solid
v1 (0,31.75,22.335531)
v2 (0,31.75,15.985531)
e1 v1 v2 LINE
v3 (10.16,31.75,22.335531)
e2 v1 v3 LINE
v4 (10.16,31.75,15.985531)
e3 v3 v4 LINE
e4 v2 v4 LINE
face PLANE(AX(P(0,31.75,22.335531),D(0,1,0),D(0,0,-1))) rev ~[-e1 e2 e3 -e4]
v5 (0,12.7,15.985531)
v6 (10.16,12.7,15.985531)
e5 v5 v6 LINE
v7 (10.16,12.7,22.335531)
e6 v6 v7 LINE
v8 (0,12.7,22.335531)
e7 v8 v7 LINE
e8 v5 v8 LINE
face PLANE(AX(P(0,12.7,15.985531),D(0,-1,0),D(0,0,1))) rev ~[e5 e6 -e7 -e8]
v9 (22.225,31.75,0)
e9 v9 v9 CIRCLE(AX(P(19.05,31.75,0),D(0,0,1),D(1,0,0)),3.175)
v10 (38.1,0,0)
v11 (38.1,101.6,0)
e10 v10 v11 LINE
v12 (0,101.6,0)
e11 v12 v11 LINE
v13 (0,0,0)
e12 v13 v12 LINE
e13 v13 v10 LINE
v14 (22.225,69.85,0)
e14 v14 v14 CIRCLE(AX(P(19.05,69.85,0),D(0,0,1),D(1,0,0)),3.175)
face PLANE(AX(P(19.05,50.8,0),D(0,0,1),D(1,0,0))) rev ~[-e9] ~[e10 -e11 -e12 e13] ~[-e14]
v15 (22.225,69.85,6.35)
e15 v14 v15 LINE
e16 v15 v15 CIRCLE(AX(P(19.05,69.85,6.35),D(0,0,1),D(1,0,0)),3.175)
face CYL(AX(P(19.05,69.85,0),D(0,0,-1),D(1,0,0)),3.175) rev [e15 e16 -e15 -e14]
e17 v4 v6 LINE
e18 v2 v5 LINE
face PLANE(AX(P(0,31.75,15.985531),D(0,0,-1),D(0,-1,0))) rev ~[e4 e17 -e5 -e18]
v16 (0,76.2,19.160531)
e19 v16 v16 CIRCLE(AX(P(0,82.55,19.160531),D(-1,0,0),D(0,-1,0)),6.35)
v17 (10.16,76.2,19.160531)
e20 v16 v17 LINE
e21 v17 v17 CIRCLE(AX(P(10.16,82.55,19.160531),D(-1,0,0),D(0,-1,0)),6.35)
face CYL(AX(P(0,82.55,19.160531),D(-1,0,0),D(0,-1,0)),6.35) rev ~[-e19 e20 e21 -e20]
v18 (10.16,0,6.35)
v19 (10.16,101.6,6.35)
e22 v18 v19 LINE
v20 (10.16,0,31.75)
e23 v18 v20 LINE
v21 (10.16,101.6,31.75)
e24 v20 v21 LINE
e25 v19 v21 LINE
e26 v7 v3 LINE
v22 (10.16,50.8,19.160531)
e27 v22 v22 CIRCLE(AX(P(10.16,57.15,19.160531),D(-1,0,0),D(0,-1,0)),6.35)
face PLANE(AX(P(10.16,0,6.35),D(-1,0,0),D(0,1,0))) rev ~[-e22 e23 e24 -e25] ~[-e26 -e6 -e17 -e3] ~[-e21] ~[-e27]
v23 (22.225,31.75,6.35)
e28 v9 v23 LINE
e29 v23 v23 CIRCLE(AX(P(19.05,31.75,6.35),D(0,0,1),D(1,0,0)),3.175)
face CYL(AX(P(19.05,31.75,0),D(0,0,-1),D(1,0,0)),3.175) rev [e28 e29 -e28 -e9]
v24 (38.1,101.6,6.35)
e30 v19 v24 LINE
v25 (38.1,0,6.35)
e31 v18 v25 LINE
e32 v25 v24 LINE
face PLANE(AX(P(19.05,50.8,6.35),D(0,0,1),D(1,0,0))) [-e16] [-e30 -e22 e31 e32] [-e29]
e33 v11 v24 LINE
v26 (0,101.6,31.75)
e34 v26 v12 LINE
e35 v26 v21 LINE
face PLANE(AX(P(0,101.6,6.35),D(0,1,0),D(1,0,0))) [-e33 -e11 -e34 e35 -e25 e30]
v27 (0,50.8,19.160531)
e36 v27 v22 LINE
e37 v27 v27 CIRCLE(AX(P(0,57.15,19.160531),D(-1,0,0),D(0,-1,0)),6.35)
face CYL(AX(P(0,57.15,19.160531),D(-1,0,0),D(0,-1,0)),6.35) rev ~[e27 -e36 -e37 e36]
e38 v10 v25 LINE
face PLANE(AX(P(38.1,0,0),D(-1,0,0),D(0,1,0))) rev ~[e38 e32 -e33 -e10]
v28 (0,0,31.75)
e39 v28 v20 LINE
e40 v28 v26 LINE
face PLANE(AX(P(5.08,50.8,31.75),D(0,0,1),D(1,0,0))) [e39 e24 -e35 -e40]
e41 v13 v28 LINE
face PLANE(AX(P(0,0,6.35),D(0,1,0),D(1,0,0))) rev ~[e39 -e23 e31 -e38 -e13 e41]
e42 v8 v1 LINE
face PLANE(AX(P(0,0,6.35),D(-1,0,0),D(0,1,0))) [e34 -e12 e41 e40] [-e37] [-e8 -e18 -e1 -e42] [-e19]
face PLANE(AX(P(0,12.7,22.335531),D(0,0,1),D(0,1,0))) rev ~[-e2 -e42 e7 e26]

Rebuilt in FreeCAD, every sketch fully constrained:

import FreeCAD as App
import Part
import Sketcher
from FreeCAD import Vector
Q = App.Units.Quantity

doc = App.newDocument("Part")
body = doc.addObject("PartDesign::Body", "Body")

# Sketch on XY plane
sketch1 = body.newObject("Sketcher::SketchObject", "Sketch")
sketch1.AttachmentSupport = (doc.getObject("XY_Plane"), [""])
sketch1.MapMode = "FlatFace"
sketch1.addGeometry([
    Part.LineSegment(Vector(0, 101.6, 0), Vector(0, 0, 0)),  # 0
    Part.LineSegment(Vector(0, 0, 0), Vector(38.1, 0, 0)),  # 1
    Part.LineSegment(Vector(38.1, 0, 0), Vector(38.1, 101.6, 0)),  # 2
    Part.LineSegment(Vector(38.1, 101.6, 0), Vector(0, 101.6, 0)),  # 3
    Part.Circle(Vector(19.05, 31.75, 0), Vector(0, 0, 1), 3.175),  # 4
    Part.Circle(Vector(19.05, 69.85, 0), Vector(0, 0, 1), 3.175),  # 5
], False)
sketch1.addConstraint([
    Sketcher.Constraint("Coincident", 0, 2, 1, 1),
    Sketcher.Constraint("Coincident", 1, 2, 2, 1),
    Sketcher.Constraint("Coincident", 2, 2, 3, 1),
    Sketcher.Constraint("Coincident", 3, 2, 0, 1),
    Sketcher.Constraint("Vertical", 0),
    Sketcher.Constraint("Horizontal", 1),
    Sketcher.Constraint("Vertical", 2),
    Sketcher.Constraint("Horizontal", 3),
    Sketcher.Constraint("Coincident", 0, 2, -1, 1),
    Sketcher.Constraint("Equal", 4, 5),
    Sketcher.Constraint("Vertical", 4, 3, 5, 3),
    Sketcher.Constraint("Diameter", 4, Q("0.25 in")),
    Sketcher.Constraint("DistanceY", 0, 2, 0, 1, Q("4 in")),
    Sketcher.Constraint("DistanceX", 1, 1, 1, 2, Q("1.5 in")),
    Sketcher.Constraint("DistanceY", 4, 3, 5, 3, Q("1.5 in")),
    Sketcher.Constraint("DistanceX", -1, 1, 4, 3, Q("0.75 in")),
    Sketcher.Constraint("DistanceY", -1, 1, 4, 3, Q("1.25 in")),
])
pad1 = body.newObject("PartDesign::Pad", "Pad")
pad1.Profile = sketch1
pad1.Length = Q("0.25 in")

# Sketch on XY plane
sketch2 = body.newObject("Sketcher::SketchObject", "Sketch001")
sketch2.AttachmentSupport = (doc.getObject("XY_Plane"), [""])
sketch2.MapMode = "FlatFace"
sketch2.AttachmentOffset = App.Placement(Vector(0, 0, 0.25 * 25.4), App.Rotation())
sketch2.addGeometry([
    Part.LineSegment(Vector(0, 101.6, 0), Vector(0, 0, 0)),
    Part.LineSegment(Vector(0, 0, 0), Vector(10.16, 0, 0)),
    Part.LineSegment(Vector(10.16, 0, 0), Vector(10.16, 101.6, 0)),
    Part.LineSegment(Vector(10.16, 101.6, 0), Vector(0, 101.6, 0)),
], False)
sketch2.addConstraint([
    Sketcher.Constraint("Coincident", 0, 2, 1, 1),
    Sketcher.Constraint("Coincident", 1, 2, 2, 1),
    Sketcher.Constraint("Coincident", 2, 2, 3, 1),
    Sketcher.Constraint("Coincident", 3, 2, 0, 1),
    Sketcher.Constraint("Vertical", 0),
    Sketcher.Constraint("Horizontal", 1),
    Sketcher.Constraint("Vertical", 2),
    Sketcher.Constraint("Horizontal", 3),
    Sketcher.Constraint("Coincident", 0, 2, -1, 1),
    Sketcher.Constraint("DistanceY", 0, 2, 0, 1, Q("4 in")),
    Sketcher.Constraint("DistanceX", 1, 1, 1, 2, Q("0.4 in")),
])
pad2 = body.newObject("PartDesign::Pad", "Pad001")
pad2.Profile = sketch2
pad2.Length = Q("1 in")

# Sketch on YZ plane
sketch3 = body.newObject("Sketcher::SketchObject", "Sketch002")
sketch3.AttachmentSupport = (doc.getObject("YZ_Plane"), [""])
sketch3.MapMode = "FlatFace"
sketch3.addGeometry([
    Part.Circle(Vector(82.55, 19.160531, 0), Vector(0, 0, 1), 6.35),  # 0
    Part.Circle(Vector(57.15, 19.160531, 0), Vector(0, 0, 1), 6.35),  # 1
    Part.LineSegment(Vector(31.75, 15.985531, 0), Vector(12.7, 15.985531, 0)),  # 2
    Part.LineSegment(Vector(12.7, 15.985531, 0), Vector(12.7, 22.335531, 0)),  # 3
    Part.LineSegment(Vector(12.7, 22.335531, 0), Vector(31.75, 22.335531, 0)),  # 4
    Part.LineSegment(Vector(31.75, 22.335531, 0), Vector(31.75, 15.985531, 0)),  # 5
], False)
sketch3.addConstraint([
    Sketcher.Constraint("Coincident", 2, 2, 3, 1),
    Sketcher.Constraint("Coincident", 3, 2, 4, 1),
    Sketcher.Constraint("Coincident", 4, 2, 5, 1),
    Sketcher.Constraint("Coincident", 5, 2, 2, 1),
    Sketcher.Constraint("Horizontal", 2),
    Sketcher.Constraint("Vertical", 3),
    Sketcher.Constraint("Horizontal", 4),
    Sketcher.Constraint("Vertical", 5),
    Sketcher.Constraint("Equal", 0, 1),
    Sketcher.Constraint("Horizontal", 0, 3, 1, 3),
    Sketcher.Constraint("Diameter", 0, Q("0.5 in")),
    Sketcher.Constraint("DistanceX", 1, 3, 0, 3, Q("1 in")),
    Sketcher.Constraint("DistanceX", 4, 2, 1, 3, Q("1 in")),
    Sketcher.Constraint("DistanceX", 2, 2, 2, 1, Q("0.75 in")),
    Sketcher.Constraint("DistanceY", 3, 1, 3, 2, Q("0.25 in")),
    Sketcher.Constraint("DistanceX", -1, 1, 2, 2, Q("0.5 in")),
    Sketcher.Constraint("DistanceY", 2, 2, 1, 3, Q("0.125 in")),
    Sketcher.Constraint("DistanceY", -1, 1, 0, 3, Q("19.160531 mm")),
])
pocket1 = body.newObject("PartDesign::Pocket", "Pocket")
pocket1.Profile = sketch3
pocket1.Length = Q("1 in")
pocket1.Reversed = True

doc.recompute()
